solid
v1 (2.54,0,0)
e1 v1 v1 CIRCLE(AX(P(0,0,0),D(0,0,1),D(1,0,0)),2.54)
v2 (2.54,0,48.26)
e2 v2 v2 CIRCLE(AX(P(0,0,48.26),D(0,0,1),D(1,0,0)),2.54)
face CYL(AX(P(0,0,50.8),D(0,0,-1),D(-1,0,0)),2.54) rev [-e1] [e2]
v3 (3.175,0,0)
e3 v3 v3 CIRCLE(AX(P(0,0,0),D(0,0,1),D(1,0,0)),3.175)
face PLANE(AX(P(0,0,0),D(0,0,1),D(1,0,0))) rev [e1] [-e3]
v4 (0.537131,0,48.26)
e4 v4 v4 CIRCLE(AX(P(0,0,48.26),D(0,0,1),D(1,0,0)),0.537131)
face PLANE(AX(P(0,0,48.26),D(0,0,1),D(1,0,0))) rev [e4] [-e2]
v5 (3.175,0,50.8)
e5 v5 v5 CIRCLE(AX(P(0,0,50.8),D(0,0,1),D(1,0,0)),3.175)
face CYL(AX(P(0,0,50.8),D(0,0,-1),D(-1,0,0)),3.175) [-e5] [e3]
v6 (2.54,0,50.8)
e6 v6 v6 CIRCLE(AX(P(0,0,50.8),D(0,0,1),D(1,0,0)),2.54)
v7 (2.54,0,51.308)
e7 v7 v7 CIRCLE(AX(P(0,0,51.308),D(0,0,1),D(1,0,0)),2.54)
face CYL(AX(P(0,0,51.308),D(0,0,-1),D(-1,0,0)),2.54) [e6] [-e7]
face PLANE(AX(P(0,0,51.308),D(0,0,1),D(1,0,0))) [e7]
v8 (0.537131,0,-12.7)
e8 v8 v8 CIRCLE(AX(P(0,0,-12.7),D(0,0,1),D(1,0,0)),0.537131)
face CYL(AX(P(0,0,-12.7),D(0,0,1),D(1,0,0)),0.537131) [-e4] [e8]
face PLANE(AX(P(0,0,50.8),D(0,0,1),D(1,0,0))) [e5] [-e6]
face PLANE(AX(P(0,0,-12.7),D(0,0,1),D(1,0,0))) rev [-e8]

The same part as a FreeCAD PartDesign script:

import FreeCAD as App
import Part
import Sketcher
Q = App.Units.Quantity

doc = App.newDocument("Part")
body = doc.addObject("PartDesign::Body", "Body")

# Sketch on XY plane
sketch1 = body.newObject("Sketcher::SketchObject", "Sketch")
sketch1.AttachmentSupport = (doc.getObject("XY_Plane"), [""])
sketch1.MapMode = "FlatFace"
sketch1.addGeometry([
    Part.Circle(App.Vector(0, 0, 0), App.Vector(0, 0, 1), 3.175),
    Part.Circle(App.Vector(0, 0, 0), App.Vector(0, 0, 1), 2.54),
], False)
sketch1.addConstraint([
    Sketcher.Constraint("Coincident", 0, 3, -1, 1),
    Sketcher.Constraint("Coincident", 1, 3, -1, 1),
    Sketcher.Constraint("Diameter", 1, Q("0.2 in")),
    Sketcher.Constraint("Diameter", 0, Q("0.25 in")),
])
pad1 = body.newObject("PartDesign::Pad", "Pad")
pad1.Profile = sketch1
pad1.Length = Q("2 in")

# Sketch on XY plane
sketch2 = body.newObject("Sketcher::SketchObject", "Sketch001")
sketch2.AttachmentSupport = (doc.getObject("XY_Plane"), [""])
sketch2.MapMode = "FlatFace"
sketch2.AttachmentOffset = App.Placement(App.Vector(0, 0, 2 * 25.4), App.Rotation())
sketch2.addGeometry(Part.Circle(App.Vector(0, 0, 0), App.Vector(0, 0, 1), 2.54), False)
sketch2.addConstraint([
    Sketcher.Constraint("Coincident", 0, 3, -1, 1),
    Sketcher.Constraint("Diameter", 0, Q("0.2 in")),
])
pad2 = body.newObject("PartDesign::Pad", "Pad001")
pad2.Profile = sketch2
pad2.Type = "TwoLengths"
pad2.Length = Q("0.02 in")
pad2.Length2 = Q("0.1 in")

# Sketch on XY plane
sketch3 = body.newObject("Sketcher::SketchObject", "Sketch002")
sketch3.AttachmentSupport = (doc.getObject("XY_Plane"), [""])
sketch3.MapMode = "FlatFace"
sketch3.AttachmentOffset = App.Placement(App.Vector(0, 0, 1.9 * 25.4), App.Rotation())
sketch3.addGeometry(Part.Circle(App.Vector(0, 0, 0), App.Vector(0, 0, 1), 0.537131), False)
sketch3.addConstraint([
    Sketcher.Constraint("Coincident", 0, 3, -1, 1),
    Sketcher.Constraint("Diameter", 0, Q("1.074263 mm")),
])
pad3 = body.newObject("PartDesign::Pad", "Pad002")
pad3.Profile = sketch3
pad3.Length = Q("2.4 in")
pad3.Reversed = True

doc.recompute()
